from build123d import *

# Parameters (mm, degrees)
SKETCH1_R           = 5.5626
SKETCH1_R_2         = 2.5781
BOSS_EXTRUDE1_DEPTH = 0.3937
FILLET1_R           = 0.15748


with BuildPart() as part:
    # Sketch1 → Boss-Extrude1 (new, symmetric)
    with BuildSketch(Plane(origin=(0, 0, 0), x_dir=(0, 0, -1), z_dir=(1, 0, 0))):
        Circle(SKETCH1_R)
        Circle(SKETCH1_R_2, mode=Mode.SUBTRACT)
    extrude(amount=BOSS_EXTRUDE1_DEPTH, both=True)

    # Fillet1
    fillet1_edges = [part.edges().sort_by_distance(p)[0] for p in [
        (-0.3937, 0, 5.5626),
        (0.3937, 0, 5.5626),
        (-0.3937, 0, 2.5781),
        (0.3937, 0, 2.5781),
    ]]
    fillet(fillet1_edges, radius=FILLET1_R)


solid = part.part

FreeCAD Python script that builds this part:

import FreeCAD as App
import Part
import Sketcher
Q = App.Units.Quantity


def edges_at(feature, points):
    """Names of the edges that pass closest to the given points."""
    edges = feature.Shape.Edges
    near = lambda p: min(range(len(edges)), key=lambda i: edges[i].distToShape(Part.Vertex(*p))[0])
    return sorted({f"Edge{near(p) + 1}" for p in points})

doc = App.newDocument("Part")
body = doc.addObject("PartDesign::Body", "Body")

sketch1 = body.newObject("Sketcher::SketchObject", "Sketch")
sketch1.AttachmentSupport = (doc.getObject("YZ_Plane"), [""])
sketch1.MapMode = "FlatFace"
sketch1.addGeometry([
    Part.Circle(App.Vector(0, 0, 0), App.Vector(0, 0, 1), 5.5626),
    Part.Circle(App.Vector(0, 0, 0), App.Vector(0, 0, 1), 2.5781),
], False)
sketch1.addConstraint([
    Sketcher.Constraint("Coincident", 0, 3, -1, 1),
    Sketcher.Constraint("Coincident", 1, 3, -1, 1),
    Sketcher.Constraint("Diameter", 0, Q("0.438 in")),
    Sketcher.Constraint("Diameter", 1, Q("0.203 in")),
])
pad1 = body.newObject("PartDesign::Pad", "Pad")
pad1.Profile = sketch1
pad1.Length = Q("0.031 in")
pad1.Midplane = True
doc.recompute()

fillet = body.newObject("PartDesign::Fillet", "Fillet")
fillet.Base = (pad1, edges_at(pad1, [
    (-0.394, 0, 5.563),
    (0.394, 0, 5.563),
    (-0.394, 0, 2.578),
    (0.394, 0, 2.578),
]))
fillet.Radius = Q("0.0062 in")

doc.recompute()
